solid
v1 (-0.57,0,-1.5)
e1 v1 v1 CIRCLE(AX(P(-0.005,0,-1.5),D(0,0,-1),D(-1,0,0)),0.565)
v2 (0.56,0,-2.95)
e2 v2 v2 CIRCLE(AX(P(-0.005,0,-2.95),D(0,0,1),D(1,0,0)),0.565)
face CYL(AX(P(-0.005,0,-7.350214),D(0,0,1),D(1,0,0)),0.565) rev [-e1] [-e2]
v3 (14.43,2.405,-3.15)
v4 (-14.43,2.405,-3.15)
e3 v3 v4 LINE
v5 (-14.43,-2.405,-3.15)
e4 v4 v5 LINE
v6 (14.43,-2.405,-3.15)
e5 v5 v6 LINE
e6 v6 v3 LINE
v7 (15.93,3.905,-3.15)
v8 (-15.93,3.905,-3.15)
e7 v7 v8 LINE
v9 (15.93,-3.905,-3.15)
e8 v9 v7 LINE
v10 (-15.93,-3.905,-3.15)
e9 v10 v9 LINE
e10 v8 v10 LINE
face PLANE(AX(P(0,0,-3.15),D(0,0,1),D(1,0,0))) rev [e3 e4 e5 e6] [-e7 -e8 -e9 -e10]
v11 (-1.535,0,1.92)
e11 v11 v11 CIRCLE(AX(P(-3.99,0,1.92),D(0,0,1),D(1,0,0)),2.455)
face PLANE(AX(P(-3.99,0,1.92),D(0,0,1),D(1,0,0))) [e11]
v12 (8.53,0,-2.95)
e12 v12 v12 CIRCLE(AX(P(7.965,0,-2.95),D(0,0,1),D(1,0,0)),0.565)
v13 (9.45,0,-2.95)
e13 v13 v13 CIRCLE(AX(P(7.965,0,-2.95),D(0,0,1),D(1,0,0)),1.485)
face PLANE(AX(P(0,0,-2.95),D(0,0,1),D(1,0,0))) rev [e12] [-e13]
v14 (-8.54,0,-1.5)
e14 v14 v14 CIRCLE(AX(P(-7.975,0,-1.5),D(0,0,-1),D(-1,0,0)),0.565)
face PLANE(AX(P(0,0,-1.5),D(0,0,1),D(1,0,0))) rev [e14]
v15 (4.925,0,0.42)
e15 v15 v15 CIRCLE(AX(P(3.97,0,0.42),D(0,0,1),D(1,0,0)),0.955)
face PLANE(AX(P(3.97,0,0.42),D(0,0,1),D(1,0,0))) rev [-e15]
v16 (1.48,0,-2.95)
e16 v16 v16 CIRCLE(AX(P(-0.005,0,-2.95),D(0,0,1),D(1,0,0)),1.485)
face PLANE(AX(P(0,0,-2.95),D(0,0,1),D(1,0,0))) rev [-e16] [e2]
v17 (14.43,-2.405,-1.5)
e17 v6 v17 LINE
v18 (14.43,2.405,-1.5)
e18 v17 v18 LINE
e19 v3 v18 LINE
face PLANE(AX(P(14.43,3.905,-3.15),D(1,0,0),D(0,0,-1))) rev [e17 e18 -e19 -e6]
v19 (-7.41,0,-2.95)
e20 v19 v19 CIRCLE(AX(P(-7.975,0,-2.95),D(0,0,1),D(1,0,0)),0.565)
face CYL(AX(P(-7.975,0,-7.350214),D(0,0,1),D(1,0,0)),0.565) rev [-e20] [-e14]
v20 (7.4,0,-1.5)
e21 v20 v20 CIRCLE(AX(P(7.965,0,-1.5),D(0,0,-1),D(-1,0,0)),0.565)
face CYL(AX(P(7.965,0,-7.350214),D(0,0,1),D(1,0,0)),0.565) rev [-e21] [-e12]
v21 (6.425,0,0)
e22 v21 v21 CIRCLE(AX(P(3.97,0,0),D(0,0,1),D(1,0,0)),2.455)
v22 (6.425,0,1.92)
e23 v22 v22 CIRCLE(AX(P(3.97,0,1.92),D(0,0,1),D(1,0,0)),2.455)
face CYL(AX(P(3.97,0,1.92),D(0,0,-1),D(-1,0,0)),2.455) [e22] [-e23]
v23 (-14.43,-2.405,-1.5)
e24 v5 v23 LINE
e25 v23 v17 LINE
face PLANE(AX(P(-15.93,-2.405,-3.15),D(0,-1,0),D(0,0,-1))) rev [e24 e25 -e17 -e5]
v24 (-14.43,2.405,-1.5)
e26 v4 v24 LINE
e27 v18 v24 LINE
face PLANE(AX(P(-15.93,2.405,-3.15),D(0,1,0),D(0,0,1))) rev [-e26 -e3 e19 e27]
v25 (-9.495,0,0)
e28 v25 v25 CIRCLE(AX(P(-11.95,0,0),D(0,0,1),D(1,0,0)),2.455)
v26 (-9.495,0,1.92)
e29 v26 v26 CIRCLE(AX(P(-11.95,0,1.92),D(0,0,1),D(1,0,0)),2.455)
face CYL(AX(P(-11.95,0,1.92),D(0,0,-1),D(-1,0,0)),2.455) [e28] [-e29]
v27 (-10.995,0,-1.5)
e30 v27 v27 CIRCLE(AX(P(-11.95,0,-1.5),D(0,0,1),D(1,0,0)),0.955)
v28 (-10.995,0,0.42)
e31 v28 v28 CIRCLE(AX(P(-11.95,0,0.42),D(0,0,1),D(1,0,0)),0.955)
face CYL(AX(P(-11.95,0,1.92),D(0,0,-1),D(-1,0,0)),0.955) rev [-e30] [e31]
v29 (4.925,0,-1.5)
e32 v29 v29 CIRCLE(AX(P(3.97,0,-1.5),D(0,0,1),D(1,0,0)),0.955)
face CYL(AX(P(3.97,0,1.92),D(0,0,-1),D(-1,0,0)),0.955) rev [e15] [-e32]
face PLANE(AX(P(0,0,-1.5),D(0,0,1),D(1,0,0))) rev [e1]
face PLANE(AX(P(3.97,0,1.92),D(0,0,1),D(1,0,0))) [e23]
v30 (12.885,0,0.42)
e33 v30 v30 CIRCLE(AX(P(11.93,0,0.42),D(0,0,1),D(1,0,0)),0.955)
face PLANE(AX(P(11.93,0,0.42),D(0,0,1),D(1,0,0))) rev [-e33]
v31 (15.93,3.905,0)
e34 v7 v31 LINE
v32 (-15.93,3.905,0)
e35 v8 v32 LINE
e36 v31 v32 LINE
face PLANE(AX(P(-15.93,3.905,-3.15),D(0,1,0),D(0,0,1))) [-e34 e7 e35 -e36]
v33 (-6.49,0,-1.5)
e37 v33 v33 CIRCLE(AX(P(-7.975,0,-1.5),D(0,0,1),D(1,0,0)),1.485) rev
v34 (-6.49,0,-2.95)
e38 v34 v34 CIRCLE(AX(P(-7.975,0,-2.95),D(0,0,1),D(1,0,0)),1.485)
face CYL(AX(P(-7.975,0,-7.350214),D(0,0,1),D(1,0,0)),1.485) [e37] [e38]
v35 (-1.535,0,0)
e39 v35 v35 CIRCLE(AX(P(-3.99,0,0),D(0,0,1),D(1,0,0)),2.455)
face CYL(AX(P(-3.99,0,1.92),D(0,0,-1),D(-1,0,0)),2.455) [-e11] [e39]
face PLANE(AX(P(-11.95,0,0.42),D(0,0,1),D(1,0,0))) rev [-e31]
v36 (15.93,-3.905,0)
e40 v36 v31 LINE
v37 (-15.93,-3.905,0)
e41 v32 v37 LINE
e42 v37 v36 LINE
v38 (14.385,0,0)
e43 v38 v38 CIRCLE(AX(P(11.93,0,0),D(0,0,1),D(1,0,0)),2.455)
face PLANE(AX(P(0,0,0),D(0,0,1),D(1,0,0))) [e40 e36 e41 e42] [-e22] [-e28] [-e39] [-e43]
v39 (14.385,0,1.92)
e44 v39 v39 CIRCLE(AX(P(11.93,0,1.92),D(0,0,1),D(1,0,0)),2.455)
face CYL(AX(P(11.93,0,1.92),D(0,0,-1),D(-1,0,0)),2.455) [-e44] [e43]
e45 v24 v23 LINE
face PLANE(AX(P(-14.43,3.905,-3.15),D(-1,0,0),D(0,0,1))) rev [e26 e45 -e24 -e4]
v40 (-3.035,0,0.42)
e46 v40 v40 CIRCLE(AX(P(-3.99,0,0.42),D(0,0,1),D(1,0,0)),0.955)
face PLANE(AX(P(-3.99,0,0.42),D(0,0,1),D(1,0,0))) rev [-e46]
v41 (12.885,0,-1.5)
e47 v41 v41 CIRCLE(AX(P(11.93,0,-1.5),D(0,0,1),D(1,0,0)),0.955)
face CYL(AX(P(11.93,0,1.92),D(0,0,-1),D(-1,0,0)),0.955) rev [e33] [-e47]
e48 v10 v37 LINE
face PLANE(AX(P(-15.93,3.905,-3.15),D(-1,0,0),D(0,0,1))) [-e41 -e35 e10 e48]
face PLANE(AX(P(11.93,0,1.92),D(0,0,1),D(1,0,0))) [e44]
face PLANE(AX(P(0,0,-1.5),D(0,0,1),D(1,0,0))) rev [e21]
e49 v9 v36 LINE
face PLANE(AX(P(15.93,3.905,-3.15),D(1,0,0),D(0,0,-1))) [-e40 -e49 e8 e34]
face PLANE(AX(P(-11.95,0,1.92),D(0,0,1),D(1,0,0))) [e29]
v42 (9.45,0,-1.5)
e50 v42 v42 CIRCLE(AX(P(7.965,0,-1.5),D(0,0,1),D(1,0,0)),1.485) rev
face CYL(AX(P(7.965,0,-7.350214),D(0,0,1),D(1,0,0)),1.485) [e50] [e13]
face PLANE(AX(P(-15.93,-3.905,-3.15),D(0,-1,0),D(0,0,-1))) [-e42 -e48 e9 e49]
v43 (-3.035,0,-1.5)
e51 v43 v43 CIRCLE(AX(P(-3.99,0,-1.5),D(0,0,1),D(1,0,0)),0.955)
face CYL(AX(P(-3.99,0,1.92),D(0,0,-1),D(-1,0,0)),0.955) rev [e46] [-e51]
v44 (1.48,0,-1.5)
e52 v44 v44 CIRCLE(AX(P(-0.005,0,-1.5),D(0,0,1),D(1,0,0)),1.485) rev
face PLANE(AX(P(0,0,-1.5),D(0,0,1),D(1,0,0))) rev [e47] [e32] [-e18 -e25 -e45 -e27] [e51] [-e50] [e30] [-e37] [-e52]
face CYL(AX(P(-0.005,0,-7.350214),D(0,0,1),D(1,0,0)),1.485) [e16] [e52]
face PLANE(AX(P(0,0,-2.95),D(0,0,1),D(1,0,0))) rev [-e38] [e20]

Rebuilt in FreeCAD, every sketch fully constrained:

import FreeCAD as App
import Part
import Sketcher
from FreeCAD import Vector
Q = App.Units.Quantity


def faces_at(feature, points):
    """Names of the faces that lie closest to the given points."""
    faces = feature.Shape.Faces
    near = lambda p: min(range(len(faces)), key=lambda i: faces[i].distToShape(Part.Vertex(*p))[0])
    return sorted({f"Face{near(p) + 1}" for p in points})

doc = App.newDocument("Part")
body = doc.addObject("PartDesign::Body", "Body")

# Sketch on XY plane
sketch1 = body.newObject("Sketcher::SketchObject", "Sketch")
sketch1.AttachmentSupport = (doc.getObject("XY_Plane"), [""])
sketch1.MapMode = "FlatFace"
sketch1.addGeometry([
    Part.LineSegment(Vector(-15.93, 3.905, 0), Vector(-15.93, -3.905, 0)),
    Part.LineSegment(Vector(-15.93, -3.905, 0), Vector(15.93, -3.905, 0)),
    Part.LineSegment(Vector(15.93, -3.905, 0), Vector(15.93, 3.905, 0)),
    Part.LineSegment(Vector(15.93, 3.905, 0), Vector(-15.93, 3.905, 0)),
], False)
sketch1.addConstraint([
    Sketcher.Constraint("Coincident", 0, 2, 1, 1),
    Sketcher.Constraint("Coincident", 1, 2, 2, 1),
    Sketcher.Constraint("Coincident", 2, 2, 3, 1),
    Sketcher.Constraint("Coincident", 3, 2, 0, 1),
    Sketcher.Constraint("Vertical", 0),
    Sketcher.Constraint("Horizontal", 1),
    Sketcher.Constraint("Vertical", 2),
    Sketcher.Constraint("Horizontal", 3),
    Sketcher.Constraint("Symmetric", 0, 2, 2, 2, -1, 1),
    Sketcher.Constraint("DistanceX", 1, 1, 1, 2, Q("31.86 mm")),
    Sketcher.Constraint("DistanceY", 0, 2, 0, 1, Q("7.81 mm")),
])
pad1 = body.newObject("PartDesign::Pad", "Pad")
pad1.Profile = sketch1
pad1.Length = 3.15
pad1.Reversed = True

# Sketch on XY plane
sketch2 = body.newObject("Sketcher::SketchObject", "Sketch001")
sketch2.AttachmentSupport = (doc.getObject("XY_Plane"), [""])
sketch2.MapMode = "FlatFace"
sketch2.addGeometry([
    Part.Circle(Vector(-11.95, 0, 0), Vector(0, 0, 1), 2.455),
    Part.Circle(Vector(-3.99, 0, 0), Vector(0, 0, 1), 2.455),
    Part.Circle(Vector(3.97, 0, 0), Vector(0, 0, 1), 2.455),
    Part.Circle(Vector(11.93, 0, 0), Vector(0, 0, 1), 2.455),
], False)
sketch2.addConstraint([
    Sketcher.Constraint("Equal", 0, 1),
    Sketcher.Constraint("Equal", 1, 2),
    Sketcher.Constraint("Equal", 2, 3),
    Sketcher.Constraint("PointOnObject", 0, 3, -1),
    Sketcher.Constraint("PointOnObject", 1, 3, -1),
    Sketcher.Constraint("PointOnObject", 2, 3, -1),
    Sketcher.Constraint("PointOnObject", 3, 3, -1),
    Sketcher.Constraint("Diameter", 0, Q("4.91 mm")),
    Sketcher.Constraint("DistanceX", 0, 3, -1, 1, Q("11.95 mm")),
    Sketcher.Constraint("DistanceX", 1, 3, -1, 1, Q("3.99 mm")),
    Sketcher.Constraint("DistanceX", -1, 1, 2, 3, Q("3.97 mm")),
    Sketcher.Constraint("DistanceX", -1, 1, 3, 3, Q("11.93 mm")),
])
pad2 = body.newObject("PartDesign::Pad", "Pad001")
pad2.Profile = sketch2
pad2.Length = 1.92
doc.recompute()

thickness = body.newObject("PartDesign::Thickness", "Thickness")
thickness.Base = (pad2, faces_at(pad2, [(0, 0, -3.15)]))
thickness.Value = 1.5
thickness.Reversed = True
thickness.Join = "Intersection"

# Sketch on XY plane
sketch3 = body.newObject("Sketcher::SketchObject", "Sketch002")
sketch3.AttachmentSupport = (doc.getObject("XY_Plane"), [""])
sketch3.MapMode = "FlatFace"
sketch3.AttachmentOffset = App.Placement(Vector(0, 0, -1.5), App.Rotation())
sketch3.addGeometry([
    Part.Circle(Vector(7.965, 0, 0), Vector(0, 0, 1), 1.485),  # 0
    Part.Circle(Vector(7.965, 0, 0), Vector(0, 0, 1), 0.565),  # 1
    Part.Circle(Vector(-0.005, 0, 0), Vector(0, 0, 1), 1.485),  # 2
    Part.Circle(Vector(-0.005, 0, 0), Vector(0, 0, 1), 0.565),  # 3
    Part.Circle(Vector(-7.975, 0, 0), Vector(0, 0, 1), 1.485),  # 4
    Part.Circle(Vector(-7.975, 0, 0), Vector(0, 0, 1), 0.565),  # 5
], False)
sketch3.addConstraint([
    Sketcher.Constraint("Coincident", 1, 3, 0, 3),
    Sketcher.Constraint("Coincident", 3, 3, 2, 3),
    Sketcher.Constraint("Coincident", 5, 3, 4, 3),
    Sketcher.Constraint("Equal", 0, 2),
    Sketcher.Constraint("Equal", 1, 3),
    Sketcher.Constraint("Equal", 2, 4),
    Sketcher.Constraint("Equal", 3, 5),
    Sketcher.Constraint("PointOnObject", 0, 3, -1),
    Sketcher.Constraint("PointOnObject", 2, 3, -1),
    Sketcher.Constraint("PointOnObject", 4, 3, -1),
    Sketcher.Constraint("Diameter", 0, Q("2.97 mm")),
    Sketcher.Constraint("Diameter", 1, Q("1.13 mm")),
    Sketcher.Constraint("DistanceX", 2, 3, 0, 3, Q("7.97 mm")),
    Sketcher.Constraint("DistanceX", 4, 3, 2, 3, Q("7.97 mm")),
    Sketcher.Constraint("DistanceX", -1, 1, 0, 3, Q("7.965 mm")),
])
pad3 = body.newObject("PartDesign::Pad", "Pad002")
pad3.Profile = sketch3
pad3.Length = 1.45
pad3.Reversed = True

doc.recompute()
